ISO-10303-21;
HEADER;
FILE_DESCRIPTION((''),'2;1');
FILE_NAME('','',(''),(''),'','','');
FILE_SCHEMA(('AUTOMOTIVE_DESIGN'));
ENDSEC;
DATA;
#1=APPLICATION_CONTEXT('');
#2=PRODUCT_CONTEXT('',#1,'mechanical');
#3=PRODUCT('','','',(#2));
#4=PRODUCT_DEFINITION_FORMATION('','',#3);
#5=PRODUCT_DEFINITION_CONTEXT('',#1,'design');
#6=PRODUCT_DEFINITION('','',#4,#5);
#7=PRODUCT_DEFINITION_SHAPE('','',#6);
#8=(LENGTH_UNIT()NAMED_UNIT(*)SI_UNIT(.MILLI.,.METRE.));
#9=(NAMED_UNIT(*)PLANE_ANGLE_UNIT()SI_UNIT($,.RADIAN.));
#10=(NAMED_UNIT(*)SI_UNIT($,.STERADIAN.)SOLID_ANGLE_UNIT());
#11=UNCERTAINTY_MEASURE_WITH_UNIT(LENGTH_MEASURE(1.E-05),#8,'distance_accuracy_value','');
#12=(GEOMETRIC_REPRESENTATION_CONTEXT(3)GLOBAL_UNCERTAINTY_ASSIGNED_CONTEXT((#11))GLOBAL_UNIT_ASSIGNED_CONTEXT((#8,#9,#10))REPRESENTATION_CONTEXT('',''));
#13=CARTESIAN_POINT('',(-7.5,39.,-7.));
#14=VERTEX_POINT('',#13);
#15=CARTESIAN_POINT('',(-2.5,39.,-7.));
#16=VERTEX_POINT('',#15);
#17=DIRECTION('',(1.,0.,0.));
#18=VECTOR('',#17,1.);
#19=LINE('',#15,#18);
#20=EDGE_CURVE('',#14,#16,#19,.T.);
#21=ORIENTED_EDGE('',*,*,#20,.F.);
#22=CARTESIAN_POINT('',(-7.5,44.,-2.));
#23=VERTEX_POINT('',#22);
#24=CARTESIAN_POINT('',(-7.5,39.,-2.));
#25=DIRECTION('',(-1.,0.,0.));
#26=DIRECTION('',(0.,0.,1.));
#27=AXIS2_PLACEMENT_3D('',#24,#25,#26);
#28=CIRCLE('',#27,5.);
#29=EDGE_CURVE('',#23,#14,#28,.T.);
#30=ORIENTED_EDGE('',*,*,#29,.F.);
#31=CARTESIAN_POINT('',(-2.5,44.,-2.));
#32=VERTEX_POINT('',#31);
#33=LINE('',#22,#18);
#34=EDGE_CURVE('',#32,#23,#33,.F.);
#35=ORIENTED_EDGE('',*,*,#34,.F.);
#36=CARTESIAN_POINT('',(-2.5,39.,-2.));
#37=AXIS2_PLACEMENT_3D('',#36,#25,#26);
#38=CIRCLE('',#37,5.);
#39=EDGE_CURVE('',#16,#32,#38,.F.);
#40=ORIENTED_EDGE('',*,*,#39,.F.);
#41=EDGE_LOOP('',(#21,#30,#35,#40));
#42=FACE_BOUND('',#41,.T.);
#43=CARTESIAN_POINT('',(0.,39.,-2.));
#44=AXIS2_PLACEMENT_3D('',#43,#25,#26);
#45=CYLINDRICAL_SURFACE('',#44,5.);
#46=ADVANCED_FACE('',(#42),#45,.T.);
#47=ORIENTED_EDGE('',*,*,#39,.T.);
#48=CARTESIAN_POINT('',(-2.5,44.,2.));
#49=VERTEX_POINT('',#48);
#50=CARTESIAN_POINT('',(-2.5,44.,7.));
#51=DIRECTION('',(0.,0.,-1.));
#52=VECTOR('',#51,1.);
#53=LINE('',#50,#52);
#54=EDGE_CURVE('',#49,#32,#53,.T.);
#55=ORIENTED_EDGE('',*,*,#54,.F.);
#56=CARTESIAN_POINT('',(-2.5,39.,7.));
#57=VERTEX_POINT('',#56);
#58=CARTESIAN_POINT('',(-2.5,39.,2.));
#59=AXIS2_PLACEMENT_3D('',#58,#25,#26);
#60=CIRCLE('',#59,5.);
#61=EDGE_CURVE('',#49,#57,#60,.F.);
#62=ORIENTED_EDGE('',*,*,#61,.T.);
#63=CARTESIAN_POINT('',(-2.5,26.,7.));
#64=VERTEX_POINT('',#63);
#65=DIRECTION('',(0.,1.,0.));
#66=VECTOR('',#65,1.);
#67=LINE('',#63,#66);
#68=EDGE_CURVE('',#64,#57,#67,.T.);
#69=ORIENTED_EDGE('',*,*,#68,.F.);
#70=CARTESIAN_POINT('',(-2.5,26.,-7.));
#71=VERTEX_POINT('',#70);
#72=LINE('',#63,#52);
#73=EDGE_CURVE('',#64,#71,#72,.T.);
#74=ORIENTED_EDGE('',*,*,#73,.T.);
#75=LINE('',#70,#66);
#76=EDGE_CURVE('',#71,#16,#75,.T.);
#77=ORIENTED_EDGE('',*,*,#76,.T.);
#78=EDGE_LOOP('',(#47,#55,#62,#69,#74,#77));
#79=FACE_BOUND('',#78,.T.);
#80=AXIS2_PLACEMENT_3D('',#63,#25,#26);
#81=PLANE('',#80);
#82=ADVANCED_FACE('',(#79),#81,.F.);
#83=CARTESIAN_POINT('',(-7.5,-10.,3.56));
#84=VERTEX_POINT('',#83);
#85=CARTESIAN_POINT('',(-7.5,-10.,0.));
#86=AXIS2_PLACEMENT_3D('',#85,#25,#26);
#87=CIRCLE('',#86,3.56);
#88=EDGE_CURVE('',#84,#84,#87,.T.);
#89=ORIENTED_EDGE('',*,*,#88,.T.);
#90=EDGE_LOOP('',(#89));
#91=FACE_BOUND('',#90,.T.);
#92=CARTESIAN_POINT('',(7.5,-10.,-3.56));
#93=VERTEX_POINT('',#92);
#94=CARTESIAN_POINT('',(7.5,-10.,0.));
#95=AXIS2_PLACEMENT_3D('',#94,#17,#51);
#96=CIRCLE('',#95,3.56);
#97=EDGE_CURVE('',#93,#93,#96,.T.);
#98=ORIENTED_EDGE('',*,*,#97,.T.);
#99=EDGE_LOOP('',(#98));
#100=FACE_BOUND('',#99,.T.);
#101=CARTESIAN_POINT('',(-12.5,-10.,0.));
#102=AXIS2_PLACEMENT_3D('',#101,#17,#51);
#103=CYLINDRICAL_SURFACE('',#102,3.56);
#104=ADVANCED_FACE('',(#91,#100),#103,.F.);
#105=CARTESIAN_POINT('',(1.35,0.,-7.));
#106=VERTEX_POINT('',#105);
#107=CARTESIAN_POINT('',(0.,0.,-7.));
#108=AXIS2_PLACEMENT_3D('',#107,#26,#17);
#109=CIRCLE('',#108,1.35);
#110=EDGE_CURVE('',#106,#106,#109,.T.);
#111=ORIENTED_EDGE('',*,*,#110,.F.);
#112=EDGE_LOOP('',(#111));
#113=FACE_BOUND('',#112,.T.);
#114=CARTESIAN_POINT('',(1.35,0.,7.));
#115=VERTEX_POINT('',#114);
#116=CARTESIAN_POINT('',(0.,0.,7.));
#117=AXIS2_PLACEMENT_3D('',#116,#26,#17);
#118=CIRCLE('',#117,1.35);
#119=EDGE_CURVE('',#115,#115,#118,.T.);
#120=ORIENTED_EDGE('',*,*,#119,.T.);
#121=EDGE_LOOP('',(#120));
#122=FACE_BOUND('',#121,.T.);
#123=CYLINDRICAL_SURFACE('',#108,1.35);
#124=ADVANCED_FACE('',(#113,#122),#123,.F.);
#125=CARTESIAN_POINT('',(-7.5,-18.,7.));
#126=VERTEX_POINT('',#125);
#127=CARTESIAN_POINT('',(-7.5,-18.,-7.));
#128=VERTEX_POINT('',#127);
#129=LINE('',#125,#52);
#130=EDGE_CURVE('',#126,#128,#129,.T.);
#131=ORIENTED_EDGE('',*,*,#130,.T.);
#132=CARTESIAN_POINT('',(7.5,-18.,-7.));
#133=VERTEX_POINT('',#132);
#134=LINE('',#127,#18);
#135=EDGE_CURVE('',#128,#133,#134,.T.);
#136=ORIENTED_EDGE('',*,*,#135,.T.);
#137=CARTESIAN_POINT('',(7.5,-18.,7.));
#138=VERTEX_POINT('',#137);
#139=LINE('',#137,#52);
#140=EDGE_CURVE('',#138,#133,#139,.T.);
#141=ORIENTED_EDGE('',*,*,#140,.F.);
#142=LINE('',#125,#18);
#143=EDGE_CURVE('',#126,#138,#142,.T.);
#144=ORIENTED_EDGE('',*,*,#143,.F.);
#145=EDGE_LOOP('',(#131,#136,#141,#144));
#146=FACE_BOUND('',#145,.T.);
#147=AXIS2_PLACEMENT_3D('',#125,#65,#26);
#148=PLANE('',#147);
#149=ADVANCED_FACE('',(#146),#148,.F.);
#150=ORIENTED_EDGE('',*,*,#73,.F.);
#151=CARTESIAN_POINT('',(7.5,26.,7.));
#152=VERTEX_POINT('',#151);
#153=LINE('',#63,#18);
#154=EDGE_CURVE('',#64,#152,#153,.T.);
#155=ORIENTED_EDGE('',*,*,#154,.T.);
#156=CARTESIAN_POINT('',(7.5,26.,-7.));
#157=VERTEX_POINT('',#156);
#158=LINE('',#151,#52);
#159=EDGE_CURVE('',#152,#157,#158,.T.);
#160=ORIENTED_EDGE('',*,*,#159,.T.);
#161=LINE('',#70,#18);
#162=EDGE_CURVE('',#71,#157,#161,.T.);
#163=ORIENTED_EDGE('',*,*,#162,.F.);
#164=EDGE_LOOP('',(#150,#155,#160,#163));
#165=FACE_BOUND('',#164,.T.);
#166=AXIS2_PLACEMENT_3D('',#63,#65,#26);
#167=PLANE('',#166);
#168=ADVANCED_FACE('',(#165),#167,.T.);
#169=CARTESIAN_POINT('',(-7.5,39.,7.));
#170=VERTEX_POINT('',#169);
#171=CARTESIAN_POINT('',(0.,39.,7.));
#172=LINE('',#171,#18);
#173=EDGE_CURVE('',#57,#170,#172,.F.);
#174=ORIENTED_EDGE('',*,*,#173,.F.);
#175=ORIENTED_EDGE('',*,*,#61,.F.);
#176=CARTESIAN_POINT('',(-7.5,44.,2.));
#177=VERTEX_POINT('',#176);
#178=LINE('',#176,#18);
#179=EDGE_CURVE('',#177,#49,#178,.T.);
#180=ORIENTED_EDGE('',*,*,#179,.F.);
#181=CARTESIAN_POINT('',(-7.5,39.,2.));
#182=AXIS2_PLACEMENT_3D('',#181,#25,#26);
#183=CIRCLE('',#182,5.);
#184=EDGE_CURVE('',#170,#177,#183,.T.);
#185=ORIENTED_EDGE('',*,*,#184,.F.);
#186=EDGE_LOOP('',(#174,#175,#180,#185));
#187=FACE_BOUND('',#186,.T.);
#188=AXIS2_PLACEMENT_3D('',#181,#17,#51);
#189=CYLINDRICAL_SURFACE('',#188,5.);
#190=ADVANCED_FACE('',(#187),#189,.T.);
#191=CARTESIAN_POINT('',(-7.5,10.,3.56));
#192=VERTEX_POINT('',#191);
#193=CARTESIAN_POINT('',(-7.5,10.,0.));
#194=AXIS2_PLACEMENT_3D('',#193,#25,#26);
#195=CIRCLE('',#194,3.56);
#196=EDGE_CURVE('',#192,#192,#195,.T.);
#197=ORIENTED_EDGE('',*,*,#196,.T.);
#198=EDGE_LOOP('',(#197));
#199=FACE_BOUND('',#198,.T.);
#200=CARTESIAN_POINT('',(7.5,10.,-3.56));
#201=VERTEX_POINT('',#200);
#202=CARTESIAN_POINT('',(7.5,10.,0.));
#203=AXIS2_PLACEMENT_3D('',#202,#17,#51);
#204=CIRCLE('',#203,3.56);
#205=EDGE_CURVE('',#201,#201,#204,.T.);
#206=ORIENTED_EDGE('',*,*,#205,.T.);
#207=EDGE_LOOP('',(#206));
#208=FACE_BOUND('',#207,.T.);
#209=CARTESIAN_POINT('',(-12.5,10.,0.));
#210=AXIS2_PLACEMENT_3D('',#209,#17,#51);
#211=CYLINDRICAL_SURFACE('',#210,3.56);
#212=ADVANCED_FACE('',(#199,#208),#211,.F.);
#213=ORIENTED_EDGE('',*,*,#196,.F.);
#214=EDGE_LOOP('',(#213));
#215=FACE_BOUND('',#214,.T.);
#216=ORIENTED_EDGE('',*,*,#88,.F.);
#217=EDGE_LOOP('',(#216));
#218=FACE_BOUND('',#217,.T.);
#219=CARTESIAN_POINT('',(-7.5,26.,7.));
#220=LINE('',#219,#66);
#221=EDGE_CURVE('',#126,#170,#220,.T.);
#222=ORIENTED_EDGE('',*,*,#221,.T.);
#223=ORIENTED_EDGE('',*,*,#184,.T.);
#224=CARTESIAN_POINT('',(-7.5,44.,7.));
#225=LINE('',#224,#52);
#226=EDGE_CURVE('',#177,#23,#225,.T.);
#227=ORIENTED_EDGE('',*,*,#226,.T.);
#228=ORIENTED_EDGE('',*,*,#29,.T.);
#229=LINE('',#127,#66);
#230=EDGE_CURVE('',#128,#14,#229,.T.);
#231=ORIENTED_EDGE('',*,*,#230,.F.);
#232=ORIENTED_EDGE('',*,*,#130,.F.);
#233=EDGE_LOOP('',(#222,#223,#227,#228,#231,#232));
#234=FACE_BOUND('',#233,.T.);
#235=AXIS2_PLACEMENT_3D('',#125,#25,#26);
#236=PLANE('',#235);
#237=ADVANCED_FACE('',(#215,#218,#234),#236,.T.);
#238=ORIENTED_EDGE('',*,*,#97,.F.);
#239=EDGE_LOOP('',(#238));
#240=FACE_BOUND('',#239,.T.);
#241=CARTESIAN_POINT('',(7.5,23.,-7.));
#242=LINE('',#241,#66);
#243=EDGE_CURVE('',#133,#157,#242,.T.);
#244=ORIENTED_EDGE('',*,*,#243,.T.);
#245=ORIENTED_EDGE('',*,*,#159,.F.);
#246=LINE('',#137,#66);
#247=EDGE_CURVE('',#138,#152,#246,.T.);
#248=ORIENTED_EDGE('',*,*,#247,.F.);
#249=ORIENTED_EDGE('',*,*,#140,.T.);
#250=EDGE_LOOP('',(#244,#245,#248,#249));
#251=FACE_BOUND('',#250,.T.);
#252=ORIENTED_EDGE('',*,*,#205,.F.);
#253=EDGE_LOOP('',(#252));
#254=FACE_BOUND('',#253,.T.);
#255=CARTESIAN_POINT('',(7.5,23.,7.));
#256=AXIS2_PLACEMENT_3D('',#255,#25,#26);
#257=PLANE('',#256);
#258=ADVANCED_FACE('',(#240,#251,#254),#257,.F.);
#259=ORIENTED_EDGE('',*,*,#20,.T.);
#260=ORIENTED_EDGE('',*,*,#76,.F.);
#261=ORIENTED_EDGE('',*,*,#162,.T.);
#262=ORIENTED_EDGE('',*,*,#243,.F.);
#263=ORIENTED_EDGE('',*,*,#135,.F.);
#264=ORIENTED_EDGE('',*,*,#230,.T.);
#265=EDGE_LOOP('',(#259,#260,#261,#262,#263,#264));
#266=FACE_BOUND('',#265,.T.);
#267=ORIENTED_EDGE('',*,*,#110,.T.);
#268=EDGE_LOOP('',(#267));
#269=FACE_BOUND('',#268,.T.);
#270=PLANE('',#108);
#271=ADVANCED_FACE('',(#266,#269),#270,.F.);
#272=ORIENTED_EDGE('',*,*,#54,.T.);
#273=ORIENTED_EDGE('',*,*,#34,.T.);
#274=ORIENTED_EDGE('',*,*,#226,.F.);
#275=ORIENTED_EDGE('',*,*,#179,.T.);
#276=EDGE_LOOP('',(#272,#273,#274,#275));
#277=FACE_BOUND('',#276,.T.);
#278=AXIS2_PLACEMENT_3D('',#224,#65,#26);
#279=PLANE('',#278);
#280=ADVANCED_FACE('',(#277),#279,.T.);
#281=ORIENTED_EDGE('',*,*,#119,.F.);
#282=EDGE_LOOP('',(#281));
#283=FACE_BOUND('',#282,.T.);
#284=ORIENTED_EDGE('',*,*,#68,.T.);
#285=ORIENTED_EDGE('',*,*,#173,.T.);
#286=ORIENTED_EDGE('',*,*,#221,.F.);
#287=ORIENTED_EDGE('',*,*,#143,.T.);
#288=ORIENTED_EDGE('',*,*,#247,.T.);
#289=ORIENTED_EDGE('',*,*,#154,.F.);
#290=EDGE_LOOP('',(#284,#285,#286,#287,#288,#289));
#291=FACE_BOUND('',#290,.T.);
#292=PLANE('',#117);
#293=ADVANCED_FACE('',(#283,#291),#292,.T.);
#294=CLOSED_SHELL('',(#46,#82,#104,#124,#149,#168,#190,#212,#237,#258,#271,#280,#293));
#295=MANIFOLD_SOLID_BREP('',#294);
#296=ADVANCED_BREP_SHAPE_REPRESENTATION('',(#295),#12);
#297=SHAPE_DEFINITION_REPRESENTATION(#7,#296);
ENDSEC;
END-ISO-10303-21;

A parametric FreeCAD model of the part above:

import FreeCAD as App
import Part
import Sketcher

V = App.Vector


def edges_at(feature, points):
    """Names of the edges that pass closest to the given points."""
    edges = feature.Shape.Edges
    near = lambda p: min(range(len(edges)), key=lambda i: edges[i].distToShape(Part.Vertex(*p))[0])
    return sorted({f"Edge{near(p) + 1}" for p in points})


def add_polygon(sketch, points):
    """Adds a closed chain of lines whose ends are joined by coincident constraints."""
    first, n = sketch.GeometryCount, len(points)
    for a, b in zip(points, points[1:] + points[:1]):
        sketch.addGeometry(Part.LineSegment(App.Vector(*a, 0), App.Vector(*b, 0)), False)
    for i in range(n):
        sketch.addConstraint(Sketcher.Constraint("Coincident", first + i, 2, first + (i + 1) % n, 1))

doc = App.newDocument("Part")
body = doc.addObject("PartDesign::Body", "Body")

# Sketch on XY plane
sketch1 = doc.addObject("Sketcher::SketchObject", "Sketch")
body.addObject(sketch1)
sketch1.AttachmentSupport = (doc.XY_Plane, [""])
sketch1.MapMode = "FlatFace"
add_polygon(sketch1, [(-7.5, -18), (7.5, -18), (7.5, 26), (-2.5, 26), (-2.5, 44), (-7.5, 44)])  # lines 0-5
sketch1.addConstraint([
    Sketcher.Constraint("Horizontal", 0),
    Sketcher.Constraint("Vertical", 1),
    Sketcher.Constraint("Horizontal", 2),
    Sketcher.Constraint("Vertical", 3),
    Sketcher.Constraint("Horizontal", 4),
    Sketcher.Constraint("Vertical", 5),
    Sketcher.Constraint("DistanceX", 0, 1, 0, 2, 15.0),
    Sketcher.Constraint("DistanceX", 2, 2, 2, 1, 10.0),
    Sketcher.Constraint("DistanceY", 1, 1, 1, 2, 44.0),
    Sketcher.Constraint("DistanceY", 3, 1, 3, 2, 18.0),
    Sketcher.Constraint("DistanceY", 0, 2, -1, 1, 18.0),
    Sketcher.Constraint("DistanceX", -1, 1, 0, 2, 7.5),
])
pad1 = doc.addObject("PartDesign::Pad", "Pad")
body.addObject(pad1)
pad1.Profile = sketch1
pad1.Length = 14
pad1.Midplane = True

# Sketch on YZ plane
sketch2 = doc.addObject("Sketcher::SketchObject", "Sketch001")
body.addObject(sketch2)
sketch2.AttachmentSupport = (doc.YZ_Plane, [""])
sketch2.MapMode = "FlatFace"
sketch2.AttachmentOffset = App.Placement(V(0, 0, 7.5), App.Rotation())
sketch2.addGeometry([
    Part.Circle(V(-10, 0, 0), V(0, 0, 1), 3.56),
    Part.Circle(V(10, 0, 0), V(0, 0, 1), 3.56),
], False)
sketch2.addConstraint([
    Sketcher.Constraint("Equal", 0, 1),
    Sketcher.Constraint("Symmetric", 0, 3, 1, 3, -1, 1),
    Sketcher.Constraint("PointOnObject", 0, 3, -1),
    Sketcher.Constraint("Diameter", 0, 7.12),
    Sketcher.Constraint("DistanceX", 0, 3, -1, 1, 10.0),
])
pocket1 = doc.addObject("PartDesign::Pocket", "Pocket")
body.addObject(pocket1)
pocket1.Profile = sketch2
pocket1.Length = 20

# Sketch on XY plane
sketch3 = doc.addObject("Sketcher::SketchObject", "Sketch002")
body.addObject(sketch3)
sketch3.AttachmentSupport = (doc.XY_Plane, [""])
sketch3.MapMode = "FlatFace"
sketch3.AttachmentOffset = App.Placement(V(0, 0, 7), App.Rotation())
sketch3.addGeometry(Part.Circle(V(0, 0, 0), V(0, 0, 1), 1.35), False)
sketch3.addConstraint([
    Sketcher.Constraint("Coincident", 0, 3, -1, 1),
    Sketcher.Constraint("Diameter", 0, 2.7),
])
pocket2 = doc.addObject("PartDesign::Pocket", "Pocket001")
body.addObject(pocket2)
pocket2.Profile = sketch3
pocket2.Length = 14
doc.recompute()

fillet = doc.addObject("PartDesign::Fillet", "Fillet")
body.addObject(fillet)
fillet.Base = (pocket2, edges_at(pocket2, [(-5, 44, 7), (-5, 44, -7)]))
fillet.Radius = 5

doc.recompute()
